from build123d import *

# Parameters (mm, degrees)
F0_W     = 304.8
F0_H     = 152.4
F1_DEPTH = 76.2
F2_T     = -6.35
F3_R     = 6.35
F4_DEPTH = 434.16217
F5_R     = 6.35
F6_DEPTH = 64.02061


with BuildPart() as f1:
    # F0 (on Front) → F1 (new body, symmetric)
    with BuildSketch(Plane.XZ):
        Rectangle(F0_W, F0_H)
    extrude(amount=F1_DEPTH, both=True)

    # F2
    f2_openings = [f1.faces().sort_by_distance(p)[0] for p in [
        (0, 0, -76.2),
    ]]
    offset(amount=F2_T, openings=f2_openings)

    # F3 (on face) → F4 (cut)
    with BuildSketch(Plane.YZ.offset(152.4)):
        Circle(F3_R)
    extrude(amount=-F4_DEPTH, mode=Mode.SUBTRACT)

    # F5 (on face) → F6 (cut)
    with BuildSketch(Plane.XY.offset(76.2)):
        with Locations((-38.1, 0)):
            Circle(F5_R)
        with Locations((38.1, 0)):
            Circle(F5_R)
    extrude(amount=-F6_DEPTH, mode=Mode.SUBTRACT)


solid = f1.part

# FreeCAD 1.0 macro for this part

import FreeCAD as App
import Part
import Sketcher
Q = App.Units.Quantity


def faces_at(feature, points):
    """Names of the faces that lie closest to the given points."""
    faces = feature.Shape.Faces
    near = lambda p: min(range(len(faces)), key=lambda i: faces[i].distToShape(Part.Vertex(*p))[0])
    return sorted({f"Face{near(p) + 1}" for p in points})


def add_polygon(sketch, points):
    """Adds a closed chain of lines whose ends are joined by coincident constraints."""
    first, n = sketch.GeometryCount, len(points)
    for a, b in zip(points, points[1:] + points[:1]):
        sketch.addGeometry(Part.LineSegment(App.Vector(*a, 0), App.Vector(*b, 0)), False)
    for i in range(n):
        sketch.addConstraint(Sketcher.Constraint("Coincident", first + i, 2, first + (i + 1) % n, 1))

doc = App.newDocument("Part")
body = doc.addObject("PartDesign::Body", "Body")

# Sketch on XZ plane
sketch1 = body.newObject("Sketcher::SketchObject", "Sketch")
sketch1.AttachmentSupport = (doc.getObject("XZ_Plane"), [""])
sketch1.MapMode = "FlatFace"
add_polygon(sketch1, [(-152, 76), (-152, -76), (152, -76), (152, 76)])  # lines 0-3
sketch1.addConstraint([
    Sketcher.Constraint("Vertical", 0),
    Sketcher.Constraint("Horizontal", 1),
    Sketcher.Constraint("Vertical", 2),
    Sketcher.Constraint("Horizontal", 3),
    Sketcher.Constraint("Symmetric", 0, 2, 2, 2, -1, 1),
    Sketcher.Constraint("DistanceX", 1, 1, 1, 2, Q("12 in")),
    Sketcher.Constraint("DistanceY", 0, 2, 0, 1, Q("6 in")),
])
pad1 = body.newObject("PartDesign::Pad", "Pad")
pad1.Profile = sketch1
pad1.Length = Q("6 in")
pad1.Midplane = True
doc.recompute()

thickness = body.newObject("PartDesign::Thickness", "Thickness")
thickness.Base = (pad1, faces_at(pad1, [(0, 0, -76.2)]))
thickness.Value = Q("0.25 in")
thickness.Reversed = True
thickness.Join = "Arc"

# Sketch on YZ plane
sketch2 = body.newObject("Sketcher::SketchObject", "Sketch001")
sketch2.AttachmentSupport = (doc.getObject("YZ_Plane"), [""])
sketch2.MapMode = "FlatFace"
sketch2.AttachmentOffset = App.Placement(App.Vector(0, 0, 6 * 25.4), App.Rotation())
sketch2.addGeometry(Part.Circle(App.Vector(0, 0, 0), App.Vector(0, 0, 1), 6), False)
sketch2.addConstraint([
    Sketcher.Constraint("Coincident", 0, 3, -1, 1),
    Sketcher.Constraint("Diameter", 0, Q("0.5 in")),
])
pocket1 = body.newObject("PartDesign::Pocket", "Pocket")
pocket1.Profile = sketch2
pocket1.Length = 434.16217

# Sketch on XY plane
sketch3 = body.newObject("Sketcher::SketchObject", "Sketch002")
sketch3.AttachmentSupport = (doc.getObject("XY_Plane"), [""])
sketch3.MapMode = "FlatFace"
sketch3.AttachmentOffset = App.Placement(App.Vector(0, 0, 3 * 25.4), App.Rotation())
sketch3.addGeometry([
    Part.Circle(App.Vector(-38, 0, 0), App.Vector(0, 0, 1), 6),
    Part.Circle(App.Vector(38, 0, 0), App.Vector(0, 0, 1), 6),
], False)
sketch3.addConstraint([
    Sketcher.Constraint("Equal", 0, 1),
    Sketcher.Constraint("Symmetric", 0, 3, 1, 3, -1, 1),
    Sketcher.Constraint("PointOnObject", 0, 3, -1),
    Sketcher.Constraint("Diameter", 0, Q("0.5 in")),
    Sketcher.Constraint("DistanceX", 0, 3, 1, 3, Q("3 in")),
])
pocket2 = body.newObject("PartDesign::Pocket", "Pocket001")
pocket2.Profile = sketch3
pocket2.Length = 64.02061

doc.recompute()
